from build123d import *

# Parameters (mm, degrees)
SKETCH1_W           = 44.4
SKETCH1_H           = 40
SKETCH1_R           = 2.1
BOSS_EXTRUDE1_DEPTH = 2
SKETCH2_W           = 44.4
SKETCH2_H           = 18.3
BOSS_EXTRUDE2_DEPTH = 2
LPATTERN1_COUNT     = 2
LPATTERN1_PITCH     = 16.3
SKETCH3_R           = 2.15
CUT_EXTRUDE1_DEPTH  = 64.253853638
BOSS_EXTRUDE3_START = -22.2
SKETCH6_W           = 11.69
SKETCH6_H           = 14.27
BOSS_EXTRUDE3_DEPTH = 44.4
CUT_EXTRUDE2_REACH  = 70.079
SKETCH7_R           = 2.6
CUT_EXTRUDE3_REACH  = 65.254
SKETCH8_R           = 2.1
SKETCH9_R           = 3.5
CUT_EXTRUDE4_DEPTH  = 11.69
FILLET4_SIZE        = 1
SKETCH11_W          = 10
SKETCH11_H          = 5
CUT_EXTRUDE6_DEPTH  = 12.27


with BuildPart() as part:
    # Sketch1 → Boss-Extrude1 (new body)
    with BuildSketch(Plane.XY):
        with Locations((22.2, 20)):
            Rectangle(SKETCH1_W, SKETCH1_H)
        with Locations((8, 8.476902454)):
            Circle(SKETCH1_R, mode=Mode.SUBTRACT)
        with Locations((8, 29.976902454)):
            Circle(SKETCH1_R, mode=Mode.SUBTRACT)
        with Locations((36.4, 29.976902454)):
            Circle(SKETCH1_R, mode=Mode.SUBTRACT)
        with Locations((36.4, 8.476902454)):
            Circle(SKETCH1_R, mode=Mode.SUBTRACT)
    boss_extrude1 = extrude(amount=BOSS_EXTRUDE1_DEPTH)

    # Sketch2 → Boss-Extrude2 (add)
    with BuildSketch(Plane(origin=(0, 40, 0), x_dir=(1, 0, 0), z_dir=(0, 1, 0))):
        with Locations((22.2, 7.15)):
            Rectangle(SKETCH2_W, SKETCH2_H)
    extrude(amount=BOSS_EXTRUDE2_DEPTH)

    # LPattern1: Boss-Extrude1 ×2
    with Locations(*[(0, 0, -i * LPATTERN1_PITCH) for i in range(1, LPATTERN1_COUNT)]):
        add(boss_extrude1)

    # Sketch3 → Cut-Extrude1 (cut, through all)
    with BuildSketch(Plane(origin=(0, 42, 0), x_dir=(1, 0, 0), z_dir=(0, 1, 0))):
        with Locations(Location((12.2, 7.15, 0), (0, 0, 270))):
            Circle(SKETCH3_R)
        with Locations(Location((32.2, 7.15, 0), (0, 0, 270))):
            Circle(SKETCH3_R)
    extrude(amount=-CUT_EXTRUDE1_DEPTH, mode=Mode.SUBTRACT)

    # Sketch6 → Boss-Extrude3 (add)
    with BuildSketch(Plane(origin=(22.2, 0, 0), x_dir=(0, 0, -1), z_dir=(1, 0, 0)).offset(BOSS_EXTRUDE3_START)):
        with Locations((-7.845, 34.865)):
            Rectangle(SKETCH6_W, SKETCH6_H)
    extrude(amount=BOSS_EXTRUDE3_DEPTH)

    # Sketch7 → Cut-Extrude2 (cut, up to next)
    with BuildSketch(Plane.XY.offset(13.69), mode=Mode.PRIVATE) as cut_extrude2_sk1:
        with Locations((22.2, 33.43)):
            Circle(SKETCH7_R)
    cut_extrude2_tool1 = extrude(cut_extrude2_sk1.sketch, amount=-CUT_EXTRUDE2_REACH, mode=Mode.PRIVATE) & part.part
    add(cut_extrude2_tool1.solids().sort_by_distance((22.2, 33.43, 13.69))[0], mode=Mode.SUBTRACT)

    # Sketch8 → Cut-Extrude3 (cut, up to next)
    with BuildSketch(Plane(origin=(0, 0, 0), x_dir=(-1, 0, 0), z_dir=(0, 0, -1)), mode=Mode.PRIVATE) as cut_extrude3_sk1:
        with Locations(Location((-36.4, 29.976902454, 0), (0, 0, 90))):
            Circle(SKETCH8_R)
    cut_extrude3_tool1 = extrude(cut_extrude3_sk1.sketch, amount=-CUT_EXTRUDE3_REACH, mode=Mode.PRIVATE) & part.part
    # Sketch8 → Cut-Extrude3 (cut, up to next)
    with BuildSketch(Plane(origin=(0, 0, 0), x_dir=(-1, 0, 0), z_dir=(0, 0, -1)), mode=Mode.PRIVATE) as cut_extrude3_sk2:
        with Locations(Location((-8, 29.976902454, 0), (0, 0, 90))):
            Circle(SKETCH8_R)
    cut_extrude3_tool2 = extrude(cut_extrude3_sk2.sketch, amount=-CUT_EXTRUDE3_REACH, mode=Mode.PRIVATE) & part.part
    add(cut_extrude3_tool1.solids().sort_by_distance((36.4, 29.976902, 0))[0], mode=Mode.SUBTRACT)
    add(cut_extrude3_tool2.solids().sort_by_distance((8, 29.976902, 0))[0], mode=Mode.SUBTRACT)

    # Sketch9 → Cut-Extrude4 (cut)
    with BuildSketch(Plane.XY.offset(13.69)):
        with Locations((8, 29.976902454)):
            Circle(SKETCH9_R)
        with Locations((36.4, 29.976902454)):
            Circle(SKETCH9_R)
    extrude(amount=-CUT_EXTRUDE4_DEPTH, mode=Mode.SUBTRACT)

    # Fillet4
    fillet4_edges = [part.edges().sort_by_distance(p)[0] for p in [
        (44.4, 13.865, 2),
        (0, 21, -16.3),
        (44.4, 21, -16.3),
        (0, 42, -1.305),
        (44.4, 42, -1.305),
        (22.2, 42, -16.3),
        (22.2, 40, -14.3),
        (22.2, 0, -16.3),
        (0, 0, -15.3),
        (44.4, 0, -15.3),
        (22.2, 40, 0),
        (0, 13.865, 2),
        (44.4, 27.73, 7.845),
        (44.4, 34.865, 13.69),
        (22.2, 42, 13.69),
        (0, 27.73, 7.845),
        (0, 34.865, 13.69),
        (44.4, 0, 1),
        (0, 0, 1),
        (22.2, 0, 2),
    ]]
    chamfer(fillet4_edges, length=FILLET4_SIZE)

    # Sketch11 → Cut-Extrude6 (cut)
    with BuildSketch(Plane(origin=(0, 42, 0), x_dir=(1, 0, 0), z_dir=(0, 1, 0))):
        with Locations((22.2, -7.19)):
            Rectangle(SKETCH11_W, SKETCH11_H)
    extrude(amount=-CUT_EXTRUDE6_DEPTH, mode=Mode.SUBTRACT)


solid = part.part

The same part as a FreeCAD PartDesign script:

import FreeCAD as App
import Part
import Sketcher

V = App.Vector


def edges_at(feature, points):
    """Names of the edges that pass closest to the given points."""
    edges = feature.Shape.Edges
    near = lambda p: min(range(len(edges)), key=lambda i: edges[i].distToShape(Part.Vertex(*p))[0])
    return sorted({f"Edge{near(p) + 1}" for p in points})


def add_polygon(sketch, points):
    """Adds a closed chain of lines whose ends are joined by coincident constraints."""
    first, n = sketch.GeometryCount, len(points)
    for a, b in zip(points, points[1:] + points[:1]):
        sketch.addGeometry(Part.LineSegment(App.Vector(*a, 0), App.Vector(*b, 0)), False)
    for i in range(n):
        sketch.addConstraint(Sketcher.Constraint("Coincident", first + i, 2, first + (i + 1) % n, 1))

doc = App.newDocument("Part")
body = doc.addObject("PartDesign::Body", "Body")

sketch1 = body.newObject("Sketcher::SketchObject", "Sketch")
sketch1.AttachmentSupport = (doc.getObject("XY_Plane"), [""])
sketch1.MapMode = "FlatFace"
add_polygon(sketch1, [(0, 40), (0, 0), (44.4, 0), (44.4, 40)])
sketch1.addGeometry(Part.Circle(V(8, 8.5, 0), V(0, 0, 1), 2.1), False)
sketch1.addGeometry(Part.Circle(V(36.4, 8.5, 0), V(0, 0, 1), 2.1), False)
sketch1.addGeometry(Part.Circle(V(8, 30, 0), V(0, 0, 1), 2.1), False)
sketch1.addGeometry(Part.Circle(V(36.4, 30, 0), V(0, 0, 1), 2.1), False)
sketch1.addConstraint(Sketcher.Constraint("Vertical", 0))
sketch1.addConstraint(Sketcher.Constraint("Horizontal", 1))
sketch1.addConstraint(Sketcher.Constraint("Vertical", 2))
sketch1.addConstraint(Sketcher.Constraint("Horizontal", 3))
sketch1.addConstraint(Sketcher.Constraint("Coincident", 0, 2, -1, 1))
sketch1.addConstraint(Sketcher.Constraint("Equal", 4, 5))
sketch1.addConstraint(Sketcher.Constraint("Equal", 5, 6))
sketch1.addConstraint(Sketcher.Constraint("Equal", 6, 7))
sketch1.addConstraint(Sketcher.Constraint("Horizontal", 4, 3, 5, 3))
sketch1.addConstraint(Sketcher.Constraint("Horizontal", 6, 3, 7, 3))
sketch1.addConstraint(Sketcher.Constraint("Vertical", 4, 3, 6, 3))
sketch1.addConstraint(Sketcher.Constraint("Vertical", 5, 3, 7, 3))
sketch1.addConstraint(Sketcher.Constraint("Diameter", 4, 4.2))
sketch1.addConstraint(Sketcher.Constraint("DistanceY", 0, 2, 0, 1, 40.0))
sketch1.addConstraint(Sketcher.Constraint("DistanceX", 1, 1, 1, 2, 44.4))
sketch1.addConstraint(Sketcher.Constraint("DistanceX", -1, 1, 4, 3, 8.0))
sketch1.addConstraint(Sketcher.Constraint("DistanceX", 5, 3, 1, 2, 8.0))
sketch1.addConstraint(Sketcher.Constraint("DistanceY", 4, 3, 6, 3, 21.5))
sketch1.addConstraint(Sketcher.Constraint("DistanceY", -1, 1, 4, 3, 8.476902))
pad1 = body.newObject("PartDesign::Pad", "Pad")
pad1.Profile = sketch1
pad1.Length = 2

sketch2 = body.newObject("Sketcher::SketchObject", "Sketch001")
sketch2.AttachmentSupport = (doc.getObject("XZ_Plane"), [""])
sketch2.MapMode = "FlatFace"
sketch2.AttachmentOffset = App.Placement(V(0, 0, -40), App.Rotation())
add_polygon(sketch2, [(0, -16), (0, 2), (44, 2), (44, -16)])
sketch2.addConstraint(Sketcher.Constraint("Vertical", 0))
sketch2.addConstraint(Sketcher.Constraint("Horizontal", 1))
sketch2.addConstraint(Sketcher.Constraint("Vertical", 2))
sketch2.addConstraint(Sketcher.Constraint("Horizontal", 3))
sketch2.addConstraint(Sketcher.Constraint("PointOnObject", 0, 2, -2))
sketch2.addConstraint(Sketcher.Constraint("DistanceX", 1, 1, 1, 2, 44.4))
sketch2.addConstraint(Sketcher.Constraint("DistanceY", 0, 1, 0, 2, 18.3))
sketch2.addConstraint(Sketcher.Constraint("DistanceY", -1, 1, 0, 2, 2.0))
pad2 = body.newObject("PartDesign::Pad", "Pad001")
pad2.Profile = sketch2
pad2.Length = 2
pad2.Reversed = True
doc.recompute()

linearpattern = body.newObject("PartDesign::LinearPattern", "LinearPattern")
linearpattern.Originals = [pad1]
linearpattern.Direction = (doc.getObject("Z_Axis"), [""])
linearpattern.Mode = "offset"
linearpattern.Offset = 16.3
linearpattern.Occurrences = 2
linearpattern.Reversed = True
body.Tip = linearpattern

sketch3 = body.newObject("Sketcher::SketchObject", "Sketch002")
sketch3.AttachmentSupport = (doc.getObject("XZ_Plane"), [""])
sketch3.MapMode = "FlatFace"
sketch3.AttachmentOffset = App.Placement(V(0, 0, -42), App.Rotation())
sketch3.addGeometry(Part.Circle(V(12.2, -7.2, 0), V(0, 0, 1), 2.1), False)
sketch3.addGeometry(Part.Circle(V(32.2, -7.2, 0), V(0, 0, 1), 2.1), False)
sketch3.addConstraint(Sketcher.Constraint("Equal", 0, 1))
sketch3.addConstraint(Sketcher.Constraint("Horizontal", 0, 3, 1, 3))
sketch3.addConstraint(Sketcher.Constraint("Diameter", 0, 4.3))
sketch3.addConstraint(Sketcher.Constraint("DistanceX", 0, 3, 1, 3, 20.0))
sketch3.addConstraint(Sketcher.Constraint("DistanceX", -1, 1, 0, 3, 12.2))
sketch3.addConstraint(Sketcher.Constraint("DistanceY", 0, 3, -1, 1, 7.15))
pocket1 = body.newObject("PartDesign::Pocket", "Pocket")
pocket1.Profile = sketch3
pocket1.Type = "ThroughAll"
pocket1.Reversed = True

sketch4 = body.newObject("Sketcher::SketchObject", "Sketch003")
sketch4.AttachmentSupport = (doc.getObject("YZ_Plane"), [""])
sketch4.MapMode = "FlatFace"
add_polygon(sketch4, [(42, 14), (28, 14), (28, 2), (42, 2)])
sketch4.addConstraint(Sketcher.Constraint("Horizontal", 0))
sketch4.addConstraint(Sketcher.Constraint("Vertical", 1))
sketch4.addConstraint(Sketcher.Constraint("Horizontal", 2))
sketch4.addConstraint(Sketcher.Constraint("Vertical", 3))
sketch4.addConstraint(Sketcher.Constraint("DistanceY", -1, 1, 1, 2, 2.0))
sketch4.addConstraint(Sketcher.Constraint("DistanceX", -1, 1, 2, 2, 42.0))
sketch4.addConstraint(Sketcher.Constraint("DistanceX", 0, 2, 0, 1, 14.27))
sketch4.addConstraint(Sketcher.Constraint("DistanceY", 1, 2, 1, 1, 11.69))
pad3 = body.newObject("PartDesign::Pad", "Pad002")
pad3.Profile = sketch4
pad3.Length = 44.4

sketch5 = body.newObject("Sketcher::SketchObject", "Sketch004")
sketch5.AttachmentSupport = (doc.getObject("XY_Plane"), [""])
sketch5.MapMode = "FlatFace"
sketch5.AttachmentOffset = App.Placement(V(0, 0, 13.69), App.Rotation())
sketch5.addGeometry(Part.Circle(V(22.2, 33.4, 0), V(0, 0, 1), 2.6), False)
sketch5.addConstraint(Sketcher.Constraint("Diameter", 0, 5.2))
sketch5.addConstraint(Sketcher.Constraint("DistanceX", -1, 1, 0, 3, 22.2))
sketch5.addConstraint(Sketcher.Constraint("DistanceY", -1, 1, 0, 3, 33.43))
pocket2 = body.newObject("PartDesign::Pocket", "Pocket001")
pocket2.Profile = sketch5
pocket2.Type = "UpToFirst"

sketch6 = body.newObject("Sketcher::SketchObject", "Sketch005")
sketch6.AttachmentSupport = (doc.getObject("XY_Plane"), [""])
sketch6.MapMode = "FlatFace"
sketch6.addGeometry(Part.Circle(V(36.4, 30, 0), V(0, 0, 1), 2.1), False)
sketch6.addConstraint(Sketcher.Constraint("Diameter", 0, 4.2))
sketch6.addConstraint(Sketcher.Constraint("DistanceX", -1, 1, 0, 3, 36.4))
sketch6.addConstraint(Sketcher.Constraint("DistanceY", -1, 1, 0, 3, 29.976902))
pocket3 = body.newObject("PartDesign::Pocket", "Pocket002")
pocket3.Profile = sketch6
pocket3.Length = 13.69
pocket3.Reversed = True

sketch7 = body.newObject("Sketcher::SketchObject", "Sketch006")
sketch7.AttachmentSupport = (doc.getObject("XY_Plane"), [""])
sketch7.MapMode = "FlatFace"
sketch7.addGeometry(Part.Circle(V(8, 30, 0), V(0, 0, 1), 2.1), False)
sketch7.addConstraint(Sketcher.Constraint("Diameter", 0, 4.2))
sketch7.addConstraint(Sketcher.Constraint("DistanceX", -1, 1, 0, 3, 8.0))
sketch7.addConstraint(Sketcher.Constraint("DistanceY", -1, 1, 0, 3, 29.976902))
pocket4 = body.newObject("PartDesign::Pocket", "Pocket003")
pocket4.Profile = sketch7
pocket4.Length = 13.69
pocket4.Reversed = True

sketch8 = body.newObject("Sketcher::SketchObject", "Sketch007")
sketch8.AttachmentSupport = (doc.getObject("XY_Plane"), [""])
sketch8.MapMode = "FlatFace"
sketch8.AttachmentOffset = App.Placement(V(0, 0, 13.69), App.Rotation())
sketch8.addGeometry(Part.Circle(V(8, 30, 0), V(0, 0, 1), 3.5), False)
sketch8.addGeometry(Part.Circle(V(36.4, 30, 0), V(0, 0, 1), 3.5), False)
sketch8.addConstraint(Sketcher.Constraint("Equal", 0, 1))
sketch8.addConstraint(Sketcher.Constraint("Horizontal", 0, 3, 1, 3))
sketch8.addConstraint(Sketcher.Constraint("Diameter", 0, 7.0))
sketch8.addConstraint(Sketcher.Constraint("DistanceX", -1, 1, 0, 3, 8.0))
sketch8.addConstraint(Sketcher.Constraint("DistanceX", -1, 1, 1, 3, 36.4))
sketch8.addConstraint(Sketcher.Constraint("DistanceY", -1, 1, 0, 3, 29.976902))
pocket5 = body.newObject("PartDesign::Pocket", "Pocket004")
pocket5.Profile = sketch8
pocket5.Length = 11.69
doc.recompute()

chamfer = body.newObject("PartDesign::Chamfer", "Chamfer")
chamfer.Base = (pocket5, edges_at(pocket5, [
    (44.4, 13.865, 2),
    (0, 21, -16.3),
    (44.4, 21, -16.3),
    (0, 42, -1.305),
    (44.4, 42, -1.305),
    (22.2, 42, -16.3),
    (22.2, 40, -14.3),
    (22.2, 0, -16.3),
    (0, 0, -15.3),
    (44.4, 0, -15.3),
    (22.2, 40, 0),
    (0, 13.865, 2),
    (44.4, 27.73, 7.845),
    (44.4, 34.865, 13.69),
    (22.2, 42, 13.69),
    (0, 27.73, 7.845),
    (0, 34.865, 13.69),
    (44.4, 0, 1),
    (0, 0, 1),
    (22.2, 0, 2),
]))
chamfer.Size = 1

sketch9 = body.newObject("Sketcher::SketchObject", "Sketch008")
sketch9.AttachmentSupport = (doc.getObject("XZ_Plane"), [""])
sketch9.MapMode = "FlatFace"
sketch9.AttachmentOffset = App.Placement(V(0, 0, -42), App.Rotation())
add_polygon(sketch9, [(17.2, 4.7), (17.2, 9.7), (27.2, 9.7), (27.2, 4.7)])
sketch9.addConstraint(Sketcher.Constraint("Vertical", 0))
sketch9.addConstraint(Sketcher.Constraint("Horizontal", 1))
sketch9.addConstraint(Sketcher.Constraint("Vertical", 2))
sketch9.addConstraint(Sketcher.Constraint("Horizontal", 3))
sketch9.addConstraint(Sketcher.Constraint("DistanceX", 1, 1, 1, 2, 10.0))
sketch9.addConstraint(Sketcher.Constraint("DistanceY", 0, 1, 0, 2, 5.0))
sketch9.addConstraint(Sketcher.Constraint("DistanceX", -1, 1, 0, 2, 17.2))
sketch9.addConstraint(Sketcher.Constraint("DistanceY", -1, 1, 0, 2, 9.69))
pocket6 = body.newObject("PartDesign::Pocket", "Pocket005")
pocket6.Profile = sketch9
pocket6.Length = 12.27
pocket6.Reversed = True

doc.recompute()
